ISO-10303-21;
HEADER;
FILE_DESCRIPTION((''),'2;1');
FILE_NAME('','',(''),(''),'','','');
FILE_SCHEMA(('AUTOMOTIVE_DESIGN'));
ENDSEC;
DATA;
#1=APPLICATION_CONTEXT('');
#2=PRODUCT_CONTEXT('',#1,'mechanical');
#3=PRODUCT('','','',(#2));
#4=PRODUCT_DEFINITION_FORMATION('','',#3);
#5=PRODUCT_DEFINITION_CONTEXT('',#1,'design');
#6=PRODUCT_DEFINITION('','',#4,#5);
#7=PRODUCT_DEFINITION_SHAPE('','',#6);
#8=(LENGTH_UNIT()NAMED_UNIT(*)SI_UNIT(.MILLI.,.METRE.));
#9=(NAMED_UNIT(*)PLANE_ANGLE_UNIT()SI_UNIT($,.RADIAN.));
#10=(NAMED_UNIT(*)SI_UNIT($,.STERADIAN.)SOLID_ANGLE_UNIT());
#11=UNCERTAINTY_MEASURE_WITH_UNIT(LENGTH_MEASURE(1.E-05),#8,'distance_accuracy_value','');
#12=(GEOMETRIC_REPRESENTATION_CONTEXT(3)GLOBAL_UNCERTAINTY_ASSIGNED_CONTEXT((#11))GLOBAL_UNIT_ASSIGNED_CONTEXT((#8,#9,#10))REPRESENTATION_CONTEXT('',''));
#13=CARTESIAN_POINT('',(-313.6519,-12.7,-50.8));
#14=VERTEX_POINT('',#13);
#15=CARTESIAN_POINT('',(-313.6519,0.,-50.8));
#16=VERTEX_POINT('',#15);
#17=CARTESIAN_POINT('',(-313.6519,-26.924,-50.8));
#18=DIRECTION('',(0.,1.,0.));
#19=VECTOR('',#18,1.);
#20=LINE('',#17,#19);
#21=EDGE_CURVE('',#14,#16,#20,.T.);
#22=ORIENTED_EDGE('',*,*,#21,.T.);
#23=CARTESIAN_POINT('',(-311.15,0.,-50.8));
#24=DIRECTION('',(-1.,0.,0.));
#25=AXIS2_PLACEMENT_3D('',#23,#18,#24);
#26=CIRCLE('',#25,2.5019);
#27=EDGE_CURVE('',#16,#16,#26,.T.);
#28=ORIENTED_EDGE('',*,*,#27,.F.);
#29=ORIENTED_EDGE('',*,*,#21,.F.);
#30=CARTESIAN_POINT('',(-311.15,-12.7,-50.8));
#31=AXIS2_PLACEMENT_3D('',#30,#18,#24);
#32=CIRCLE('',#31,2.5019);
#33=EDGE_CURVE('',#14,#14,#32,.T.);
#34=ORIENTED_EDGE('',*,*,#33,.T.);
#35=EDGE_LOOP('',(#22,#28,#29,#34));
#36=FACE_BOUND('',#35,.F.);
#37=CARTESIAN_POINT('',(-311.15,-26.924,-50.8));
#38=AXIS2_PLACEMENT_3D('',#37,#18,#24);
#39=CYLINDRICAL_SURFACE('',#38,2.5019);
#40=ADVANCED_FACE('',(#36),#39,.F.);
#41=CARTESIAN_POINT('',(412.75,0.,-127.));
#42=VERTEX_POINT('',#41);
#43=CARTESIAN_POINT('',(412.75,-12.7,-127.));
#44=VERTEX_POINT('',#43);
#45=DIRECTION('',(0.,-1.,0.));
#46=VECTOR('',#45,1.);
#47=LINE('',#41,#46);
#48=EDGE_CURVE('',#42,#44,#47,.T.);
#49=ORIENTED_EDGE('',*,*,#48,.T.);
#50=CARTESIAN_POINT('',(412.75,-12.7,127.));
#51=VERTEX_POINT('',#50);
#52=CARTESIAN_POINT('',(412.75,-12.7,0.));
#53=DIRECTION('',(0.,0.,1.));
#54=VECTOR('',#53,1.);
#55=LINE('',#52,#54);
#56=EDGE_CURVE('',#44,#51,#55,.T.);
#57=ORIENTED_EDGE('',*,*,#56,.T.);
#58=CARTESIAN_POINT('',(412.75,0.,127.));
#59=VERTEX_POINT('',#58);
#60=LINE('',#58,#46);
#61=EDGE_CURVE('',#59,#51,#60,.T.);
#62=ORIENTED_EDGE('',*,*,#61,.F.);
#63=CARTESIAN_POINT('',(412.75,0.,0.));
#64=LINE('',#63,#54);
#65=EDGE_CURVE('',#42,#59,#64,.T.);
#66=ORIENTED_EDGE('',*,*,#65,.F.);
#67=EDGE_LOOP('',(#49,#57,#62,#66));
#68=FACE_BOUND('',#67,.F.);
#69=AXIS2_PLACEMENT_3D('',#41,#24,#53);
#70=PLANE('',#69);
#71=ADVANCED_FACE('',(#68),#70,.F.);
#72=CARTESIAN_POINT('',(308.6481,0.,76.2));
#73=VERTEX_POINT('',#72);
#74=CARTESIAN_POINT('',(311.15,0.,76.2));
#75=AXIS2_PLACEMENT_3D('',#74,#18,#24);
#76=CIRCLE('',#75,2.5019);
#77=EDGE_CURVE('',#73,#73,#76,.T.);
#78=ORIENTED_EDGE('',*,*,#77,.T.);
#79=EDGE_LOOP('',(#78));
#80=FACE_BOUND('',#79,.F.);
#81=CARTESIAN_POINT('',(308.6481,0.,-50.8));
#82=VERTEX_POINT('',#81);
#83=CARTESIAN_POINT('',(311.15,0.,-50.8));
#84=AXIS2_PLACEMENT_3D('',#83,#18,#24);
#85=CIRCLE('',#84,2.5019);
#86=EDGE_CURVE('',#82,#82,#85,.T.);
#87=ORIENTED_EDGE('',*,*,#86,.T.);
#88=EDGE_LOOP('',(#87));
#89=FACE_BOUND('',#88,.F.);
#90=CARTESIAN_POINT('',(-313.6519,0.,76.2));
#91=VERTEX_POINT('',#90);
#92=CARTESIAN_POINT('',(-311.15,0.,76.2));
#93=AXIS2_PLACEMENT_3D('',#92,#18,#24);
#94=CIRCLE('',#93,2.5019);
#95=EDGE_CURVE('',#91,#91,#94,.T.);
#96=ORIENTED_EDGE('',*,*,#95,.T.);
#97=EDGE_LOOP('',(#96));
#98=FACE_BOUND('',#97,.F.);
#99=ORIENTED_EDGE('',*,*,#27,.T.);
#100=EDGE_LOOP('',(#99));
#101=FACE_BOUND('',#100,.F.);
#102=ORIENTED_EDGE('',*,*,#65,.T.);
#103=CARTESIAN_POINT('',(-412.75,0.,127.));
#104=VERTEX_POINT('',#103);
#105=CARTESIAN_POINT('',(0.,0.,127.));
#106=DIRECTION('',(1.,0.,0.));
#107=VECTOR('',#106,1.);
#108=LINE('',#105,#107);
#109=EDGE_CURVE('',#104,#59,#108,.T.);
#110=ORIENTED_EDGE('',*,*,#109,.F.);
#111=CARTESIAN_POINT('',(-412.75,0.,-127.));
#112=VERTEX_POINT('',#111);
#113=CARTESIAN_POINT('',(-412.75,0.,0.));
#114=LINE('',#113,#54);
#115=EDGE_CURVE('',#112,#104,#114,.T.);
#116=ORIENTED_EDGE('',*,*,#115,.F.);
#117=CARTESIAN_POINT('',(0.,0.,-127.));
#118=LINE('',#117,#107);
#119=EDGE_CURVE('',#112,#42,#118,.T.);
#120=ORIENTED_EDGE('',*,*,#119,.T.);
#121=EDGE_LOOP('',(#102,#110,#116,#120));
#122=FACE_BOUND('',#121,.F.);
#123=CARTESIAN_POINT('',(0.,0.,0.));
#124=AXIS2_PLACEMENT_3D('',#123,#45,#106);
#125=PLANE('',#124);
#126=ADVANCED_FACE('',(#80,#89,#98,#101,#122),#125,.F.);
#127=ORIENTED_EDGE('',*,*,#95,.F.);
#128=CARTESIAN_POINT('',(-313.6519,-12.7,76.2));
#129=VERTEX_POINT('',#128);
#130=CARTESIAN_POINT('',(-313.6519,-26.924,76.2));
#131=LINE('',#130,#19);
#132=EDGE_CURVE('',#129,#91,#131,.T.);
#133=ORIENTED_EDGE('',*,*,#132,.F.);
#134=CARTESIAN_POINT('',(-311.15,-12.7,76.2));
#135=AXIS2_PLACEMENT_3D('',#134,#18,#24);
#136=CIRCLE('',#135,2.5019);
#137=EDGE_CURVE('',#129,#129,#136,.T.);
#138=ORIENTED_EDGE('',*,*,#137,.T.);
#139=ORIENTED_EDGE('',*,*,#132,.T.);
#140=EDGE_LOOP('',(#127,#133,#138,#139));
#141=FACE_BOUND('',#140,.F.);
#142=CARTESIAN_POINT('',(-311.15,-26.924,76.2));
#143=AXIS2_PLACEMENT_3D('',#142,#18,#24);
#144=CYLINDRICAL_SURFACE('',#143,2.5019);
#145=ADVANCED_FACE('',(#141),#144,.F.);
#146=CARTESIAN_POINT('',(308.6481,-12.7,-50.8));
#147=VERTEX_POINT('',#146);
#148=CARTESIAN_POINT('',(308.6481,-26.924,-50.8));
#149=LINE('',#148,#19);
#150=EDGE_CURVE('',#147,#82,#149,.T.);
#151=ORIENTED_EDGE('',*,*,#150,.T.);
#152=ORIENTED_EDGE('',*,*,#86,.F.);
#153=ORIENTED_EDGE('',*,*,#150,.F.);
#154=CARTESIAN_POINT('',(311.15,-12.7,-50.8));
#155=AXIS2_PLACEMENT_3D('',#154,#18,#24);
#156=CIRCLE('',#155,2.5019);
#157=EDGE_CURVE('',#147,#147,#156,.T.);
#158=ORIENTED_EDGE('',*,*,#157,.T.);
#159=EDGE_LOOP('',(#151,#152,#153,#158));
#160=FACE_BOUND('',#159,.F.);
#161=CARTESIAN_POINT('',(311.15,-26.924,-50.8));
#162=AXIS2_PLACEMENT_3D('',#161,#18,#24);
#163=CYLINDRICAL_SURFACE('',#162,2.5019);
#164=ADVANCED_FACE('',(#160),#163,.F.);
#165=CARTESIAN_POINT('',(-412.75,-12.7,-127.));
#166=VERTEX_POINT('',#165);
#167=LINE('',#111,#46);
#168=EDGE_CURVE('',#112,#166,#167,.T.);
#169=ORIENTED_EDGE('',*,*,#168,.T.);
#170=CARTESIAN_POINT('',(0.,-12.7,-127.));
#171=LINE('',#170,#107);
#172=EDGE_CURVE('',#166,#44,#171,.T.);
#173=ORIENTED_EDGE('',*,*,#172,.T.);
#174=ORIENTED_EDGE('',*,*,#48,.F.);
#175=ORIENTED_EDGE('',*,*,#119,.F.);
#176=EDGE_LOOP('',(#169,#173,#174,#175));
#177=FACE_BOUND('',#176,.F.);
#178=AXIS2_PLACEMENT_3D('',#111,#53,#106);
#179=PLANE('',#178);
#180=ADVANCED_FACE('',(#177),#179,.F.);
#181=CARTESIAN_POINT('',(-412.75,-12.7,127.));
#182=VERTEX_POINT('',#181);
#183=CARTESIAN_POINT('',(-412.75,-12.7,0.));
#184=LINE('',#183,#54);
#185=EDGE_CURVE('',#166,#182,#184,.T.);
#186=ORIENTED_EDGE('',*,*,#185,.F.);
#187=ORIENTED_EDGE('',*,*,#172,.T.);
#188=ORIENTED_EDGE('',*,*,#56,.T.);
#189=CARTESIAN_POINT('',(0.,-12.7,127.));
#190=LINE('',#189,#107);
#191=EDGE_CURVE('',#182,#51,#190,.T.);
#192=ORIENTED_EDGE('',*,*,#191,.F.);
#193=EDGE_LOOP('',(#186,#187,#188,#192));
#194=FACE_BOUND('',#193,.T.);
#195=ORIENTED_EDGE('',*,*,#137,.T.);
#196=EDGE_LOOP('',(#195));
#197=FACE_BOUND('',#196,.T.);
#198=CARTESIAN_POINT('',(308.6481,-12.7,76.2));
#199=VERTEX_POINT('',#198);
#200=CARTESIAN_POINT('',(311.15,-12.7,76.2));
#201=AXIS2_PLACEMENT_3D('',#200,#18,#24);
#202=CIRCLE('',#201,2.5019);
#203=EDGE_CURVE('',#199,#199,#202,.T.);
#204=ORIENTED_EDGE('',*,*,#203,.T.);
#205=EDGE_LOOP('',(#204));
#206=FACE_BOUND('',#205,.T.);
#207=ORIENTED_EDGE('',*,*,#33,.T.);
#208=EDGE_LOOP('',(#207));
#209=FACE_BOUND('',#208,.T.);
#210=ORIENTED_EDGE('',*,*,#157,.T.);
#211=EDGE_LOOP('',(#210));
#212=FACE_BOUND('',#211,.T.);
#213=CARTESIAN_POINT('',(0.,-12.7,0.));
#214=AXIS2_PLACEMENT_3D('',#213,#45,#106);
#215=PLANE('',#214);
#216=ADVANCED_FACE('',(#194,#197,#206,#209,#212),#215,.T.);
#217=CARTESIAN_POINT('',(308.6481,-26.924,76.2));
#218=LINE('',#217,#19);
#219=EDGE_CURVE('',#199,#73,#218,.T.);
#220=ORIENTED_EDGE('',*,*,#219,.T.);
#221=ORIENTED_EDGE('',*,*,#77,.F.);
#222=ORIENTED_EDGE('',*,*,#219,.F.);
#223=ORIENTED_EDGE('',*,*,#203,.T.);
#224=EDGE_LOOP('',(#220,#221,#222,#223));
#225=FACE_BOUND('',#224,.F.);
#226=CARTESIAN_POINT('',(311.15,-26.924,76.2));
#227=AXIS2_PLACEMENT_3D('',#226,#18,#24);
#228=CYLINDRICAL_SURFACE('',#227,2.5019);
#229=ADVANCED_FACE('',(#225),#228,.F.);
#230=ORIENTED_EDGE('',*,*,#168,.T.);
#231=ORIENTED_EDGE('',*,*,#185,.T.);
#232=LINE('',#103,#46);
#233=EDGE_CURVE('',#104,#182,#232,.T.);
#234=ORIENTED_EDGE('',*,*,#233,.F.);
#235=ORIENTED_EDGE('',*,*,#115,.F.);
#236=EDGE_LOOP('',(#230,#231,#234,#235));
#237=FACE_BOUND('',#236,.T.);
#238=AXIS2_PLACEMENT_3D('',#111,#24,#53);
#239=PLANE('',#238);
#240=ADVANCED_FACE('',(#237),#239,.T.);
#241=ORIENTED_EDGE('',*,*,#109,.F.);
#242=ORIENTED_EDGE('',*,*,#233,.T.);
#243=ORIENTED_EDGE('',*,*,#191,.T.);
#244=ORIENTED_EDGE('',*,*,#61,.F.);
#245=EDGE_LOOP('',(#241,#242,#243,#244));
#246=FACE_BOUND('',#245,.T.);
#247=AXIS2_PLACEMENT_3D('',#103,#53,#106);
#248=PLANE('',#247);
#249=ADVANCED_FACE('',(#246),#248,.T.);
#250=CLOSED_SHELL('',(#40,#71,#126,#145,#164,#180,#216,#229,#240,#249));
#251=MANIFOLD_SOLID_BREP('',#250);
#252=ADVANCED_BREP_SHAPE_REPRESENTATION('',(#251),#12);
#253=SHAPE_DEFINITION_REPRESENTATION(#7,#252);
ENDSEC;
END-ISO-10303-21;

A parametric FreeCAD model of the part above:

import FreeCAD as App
import Part
import Sketcher

V = App.Vector
Q = App.Units.Quantity


def add_polygon(sketch, points):
    """Adds a closed chain of lines whose ends are joined by coincident constraints."""
    first, n = sketch.GeometryCount, len(points)
    for a, b in zip(points, points[1:] + points[:1]):
        sketch.addGeometry(Part.LineSegment(App.Vector(*a, 0), App.Vector(*b, 0)), False)
    for i in range(n):
        sketch.addConstraint(Sketcher.Constraint("Coincident", first + i, 2, first + (i + 1) % n, 1))

doc = App.newDocument("Part")
params = doc.addObject("Spreadsheet::Sheet", "Params")
for row, (alias, value) in enumerate([
    ("sketch1_height", "10 in"),
    ("sketch1_width", "32.5 in"),
    ("pad1_length", "0.5 in"),
    ("sketch2_diameter", "0.197 in"),
    ("hole_diameter", "0.197 in"),
    ("hole_depth", "0.56 in"),
], start=1):
    params.set(f"A{row}", alias)
    params.set(f"B{row}", "=" + value)
    params.setAlias(f"B{row}", alias)

body = doc.addObject("PartDesign::Body", "Body")

# Sketch on XZ plane
sketch1 = body.newObject("Sketcher::SketchObject", "Sketch")
sketch1.AttachmentSupport = (doc.getObject("XZ_Plane"), [""])
sketch1.MapMode = "FlatFace"
add_polygon(sketch1, [(-413, 127), (-413, -127), (413, -127), (413, 127)])  # lines 0-3
sketch1.addConstraint([
    Sketcher.Constraint("Vertical", 0),
    Sketcher.Constraint("Horizontal", 1),
    Sketcher.Constraint("Vertical", 2),
    Sketcher.Constraint("Horizontal", 3),
    Sketcher.Constraint("Symmetric", 0, 2, 2, 2, -1, 1),
    Sketcher.Constraint("DistanceY", 0, 2, 0, 1, Q("10 in")),
    Sketcher.Constraint("DistanceX", 1, 1, 1, 2, Q("32.5 in")),
])
sketch1.setExpression("Constraints[9]", "Params.sketch1_height")
sketch1.setExpression("Constraints[10]", "Params.sketch1_width")
pad1 = body.newObject("PartDesign::Pad", "Pad")
pad1.Profile = sketch1
pad1.setExpression("Length", "Params.pad1_length")

# Sketch on XZ plane
sketch2 = body.newObject("Sketcher::SketchObject", "Sketch001")
sketch2.AttachmentSupport = (doc.getObject("XZ_Plane"), [""])
sketch2.MapMode = "FlatFace"
sketch2.AttachmentOffset = App.Placement(V(0, 0, 0.5 * 25.4), App.Rotation())
sketch2.addGeometry([
    Part.Circle(V(-311.1, 76.2, 0), V(0, 0, 1), 2.5),
    Part.Circle(V(-311.1, -50.8, 0), V(0, 0, 1), 2.5),
    Part.Circle(V(311.1, 76.2, 0), V(0, 0, 1), 2.5),
    Part.Circle(V(311.1, -50.8, 0), V(0, 0, 1), 2.5),
], False)
sketch2.addConstraint([
    Sketcher.Constraint("Equal", 0, 1),
    Sketcher.Constraint("Equal", 1, 2),
    Sketcher.Constraint("Equal", 2, 3),
    Sketcher.Constraint("Symmetric", 0, 3, 2, 3, -2),
    Sketcher.Constraint("Symmetric", 1, 3, 3, 3, -2),
    Sketcher.Constraint("Vertical", 0, 3, 1, 3),
    Sketcher.Constraint("Diameter", 0, Q("0.197 in")),
    Sketcher.Constraint("DistanceY", -1, 1, 0, 3, Q("3 in")),
    Sketcher.Constraint("DistanceY", 1, 3, -1, 1, Q("2 in")),
    Sketcher.Constraint("DistanceX", 0, 3, 2, 3, Q("24.5 in")),
])
sketch2.setExpression("Constraints[6]", "Params.sketch2_diameter")
doc.recompute()
hole = body.newObject("PartDesign::Hole", "Hole")
hole.Profile = sketch2
hole.ThreadType = "None"
hole.setExpression("Diameter", "Params.hole_diameter")
hole.DepthType = "Dimension"
hole.setExpression("Depth", "Params.hole_depth")
hole.DrillPoint = "Flat"

doc.recompute()
